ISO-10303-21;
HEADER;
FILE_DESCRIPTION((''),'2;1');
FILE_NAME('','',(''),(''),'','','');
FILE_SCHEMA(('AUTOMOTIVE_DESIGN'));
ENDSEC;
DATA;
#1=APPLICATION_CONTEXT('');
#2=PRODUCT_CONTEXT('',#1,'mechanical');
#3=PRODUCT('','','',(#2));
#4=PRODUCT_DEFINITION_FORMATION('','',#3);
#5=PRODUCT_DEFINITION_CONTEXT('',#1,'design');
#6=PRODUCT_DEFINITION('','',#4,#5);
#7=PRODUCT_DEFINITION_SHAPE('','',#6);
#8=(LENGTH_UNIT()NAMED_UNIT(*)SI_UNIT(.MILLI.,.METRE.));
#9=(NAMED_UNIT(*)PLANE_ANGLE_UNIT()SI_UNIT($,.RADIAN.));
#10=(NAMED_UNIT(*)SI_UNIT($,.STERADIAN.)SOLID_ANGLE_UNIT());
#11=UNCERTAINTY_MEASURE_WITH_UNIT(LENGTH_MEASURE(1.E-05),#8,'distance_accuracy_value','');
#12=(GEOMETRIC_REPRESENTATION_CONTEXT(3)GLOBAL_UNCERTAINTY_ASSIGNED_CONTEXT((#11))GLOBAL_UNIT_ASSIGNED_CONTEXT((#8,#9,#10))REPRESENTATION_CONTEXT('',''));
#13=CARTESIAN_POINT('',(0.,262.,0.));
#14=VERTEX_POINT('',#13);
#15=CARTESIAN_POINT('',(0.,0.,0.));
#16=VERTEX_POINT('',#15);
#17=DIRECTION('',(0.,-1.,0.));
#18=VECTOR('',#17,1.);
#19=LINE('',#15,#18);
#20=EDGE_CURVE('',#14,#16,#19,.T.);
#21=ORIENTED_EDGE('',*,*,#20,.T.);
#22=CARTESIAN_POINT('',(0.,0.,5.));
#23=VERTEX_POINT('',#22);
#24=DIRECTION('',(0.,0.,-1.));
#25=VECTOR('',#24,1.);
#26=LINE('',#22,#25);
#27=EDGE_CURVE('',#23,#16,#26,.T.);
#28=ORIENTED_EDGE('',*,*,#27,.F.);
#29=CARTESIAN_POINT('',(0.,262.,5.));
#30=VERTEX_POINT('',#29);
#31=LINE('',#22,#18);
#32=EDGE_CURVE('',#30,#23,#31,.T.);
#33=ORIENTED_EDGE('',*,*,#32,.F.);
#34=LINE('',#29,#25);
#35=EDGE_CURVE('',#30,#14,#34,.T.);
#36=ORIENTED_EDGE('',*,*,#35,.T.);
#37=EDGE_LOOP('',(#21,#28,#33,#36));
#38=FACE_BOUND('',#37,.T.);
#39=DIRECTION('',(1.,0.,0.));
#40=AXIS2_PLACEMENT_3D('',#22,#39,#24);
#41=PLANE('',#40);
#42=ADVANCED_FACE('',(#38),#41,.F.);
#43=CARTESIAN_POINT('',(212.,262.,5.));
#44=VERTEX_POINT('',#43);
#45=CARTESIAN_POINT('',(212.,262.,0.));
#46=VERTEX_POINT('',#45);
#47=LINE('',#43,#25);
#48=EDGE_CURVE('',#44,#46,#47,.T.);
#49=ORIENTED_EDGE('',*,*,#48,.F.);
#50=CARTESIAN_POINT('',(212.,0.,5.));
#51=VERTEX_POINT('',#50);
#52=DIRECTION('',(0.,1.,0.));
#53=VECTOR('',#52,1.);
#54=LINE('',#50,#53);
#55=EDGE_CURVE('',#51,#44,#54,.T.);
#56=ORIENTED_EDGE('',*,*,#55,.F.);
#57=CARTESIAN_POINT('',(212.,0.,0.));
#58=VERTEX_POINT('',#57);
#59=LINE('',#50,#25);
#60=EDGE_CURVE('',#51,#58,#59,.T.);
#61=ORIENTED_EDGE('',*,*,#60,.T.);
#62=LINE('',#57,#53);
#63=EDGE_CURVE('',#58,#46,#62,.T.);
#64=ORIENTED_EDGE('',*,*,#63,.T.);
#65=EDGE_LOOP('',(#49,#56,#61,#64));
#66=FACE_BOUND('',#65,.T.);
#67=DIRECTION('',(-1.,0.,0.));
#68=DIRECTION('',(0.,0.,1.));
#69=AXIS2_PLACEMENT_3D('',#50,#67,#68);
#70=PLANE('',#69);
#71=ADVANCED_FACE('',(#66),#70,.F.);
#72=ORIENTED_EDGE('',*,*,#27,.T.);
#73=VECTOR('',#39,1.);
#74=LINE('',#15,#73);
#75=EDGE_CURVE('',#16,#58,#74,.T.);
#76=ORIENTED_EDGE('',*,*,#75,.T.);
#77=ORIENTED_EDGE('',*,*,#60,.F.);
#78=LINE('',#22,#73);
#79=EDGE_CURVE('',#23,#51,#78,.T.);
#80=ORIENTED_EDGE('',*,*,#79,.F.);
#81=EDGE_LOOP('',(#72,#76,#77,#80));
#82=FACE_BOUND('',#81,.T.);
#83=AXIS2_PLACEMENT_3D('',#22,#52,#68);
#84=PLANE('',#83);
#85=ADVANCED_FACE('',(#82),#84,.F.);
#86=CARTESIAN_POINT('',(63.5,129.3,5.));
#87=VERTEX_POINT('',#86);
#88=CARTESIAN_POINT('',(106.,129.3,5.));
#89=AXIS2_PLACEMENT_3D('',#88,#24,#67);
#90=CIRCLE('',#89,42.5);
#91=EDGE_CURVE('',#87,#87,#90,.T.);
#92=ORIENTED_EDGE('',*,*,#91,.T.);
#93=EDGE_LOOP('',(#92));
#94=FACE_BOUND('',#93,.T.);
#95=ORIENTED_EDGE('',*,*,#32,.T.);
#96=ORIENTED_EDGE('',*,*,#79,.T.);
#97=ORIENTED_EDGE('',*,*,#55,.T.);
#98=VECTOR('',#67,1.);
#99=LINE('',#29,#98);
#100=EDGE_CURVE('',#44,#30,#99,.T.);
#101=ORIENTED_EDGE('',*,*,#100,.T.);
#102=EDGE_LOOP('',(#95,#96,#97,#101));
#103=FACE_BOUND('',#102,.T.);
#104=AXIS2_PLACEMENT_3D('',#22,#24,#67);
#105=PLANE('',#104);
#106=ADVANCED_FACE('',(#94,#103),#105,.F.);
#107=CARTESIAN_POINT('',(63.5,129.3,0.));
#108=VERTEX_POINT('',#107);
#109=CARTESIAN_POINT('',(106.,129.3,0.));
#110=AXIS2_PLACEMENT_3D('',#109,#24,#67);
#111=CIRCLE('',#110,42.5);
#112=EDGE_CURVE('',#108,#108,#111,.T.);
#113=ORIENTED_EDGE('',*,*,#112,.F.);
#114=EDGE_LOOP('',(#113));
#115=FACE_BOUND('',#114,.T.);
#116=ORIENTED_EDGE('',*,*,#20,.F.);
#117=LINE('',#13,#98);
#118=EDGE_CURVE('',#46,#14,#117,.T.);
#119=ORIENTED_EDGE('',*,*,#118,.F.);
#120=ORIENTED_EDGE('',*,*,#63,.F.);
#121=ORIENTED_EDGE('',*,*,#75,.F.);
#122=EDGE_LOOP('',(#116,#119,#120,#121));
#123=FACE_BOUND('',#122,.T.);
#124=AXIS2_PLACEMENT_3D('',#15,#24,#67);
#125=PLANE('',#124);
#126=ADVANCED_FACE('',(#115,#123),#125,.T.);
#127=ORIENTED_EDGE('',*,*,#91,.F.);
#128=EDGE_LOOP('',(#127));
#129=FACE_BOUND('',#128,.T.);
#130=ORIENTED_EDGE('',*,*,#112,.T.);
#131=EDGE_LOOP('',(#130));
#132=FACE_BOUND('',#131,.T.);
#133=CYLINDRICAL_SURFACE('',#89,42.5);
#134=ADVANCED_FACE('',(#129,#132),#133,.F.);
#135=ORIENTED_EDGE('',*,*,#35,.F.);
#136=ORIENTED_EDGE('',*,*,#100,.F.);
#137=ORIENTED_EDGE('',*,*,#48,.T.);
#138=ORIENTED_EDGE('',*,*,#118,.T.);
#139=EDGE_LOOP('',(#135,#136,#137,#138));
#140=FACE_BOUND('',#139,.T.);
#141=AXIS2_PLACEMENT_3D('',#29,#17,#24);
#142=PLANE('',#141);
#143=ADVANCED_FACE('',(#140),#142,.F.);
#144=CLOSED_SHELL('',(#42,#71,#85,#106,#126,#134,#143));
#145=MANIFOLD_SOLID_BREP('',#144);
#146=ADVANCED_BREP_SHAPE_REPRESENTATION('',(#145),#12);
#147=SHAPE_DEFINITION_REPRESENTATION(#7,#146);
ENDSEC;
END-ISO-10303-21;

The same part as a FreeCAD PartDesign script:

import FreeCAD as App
import Part
import Sketcher

doc = App.newDocument("Part")
body = doc.addObject("PartDesign::Body", "Body")

# Sketch on XY plane
sketch1 = doc.addObject("Sketcher::SketchObject", "Sketch")
body.addObject(sketch1)
sketch1.AttachmentSupport = (doc.XY_Plane, [""])
sketch1.MapMode = "FlatFace"
sketch1.addGeometry([
    Part.LineSegment(App.Vector(0, 262, 0), App.Vector(0, 0, 0)),
    Part.LineSegment(App.Vector(0, 0, 0), App.Vector(212, 0, 0)),
    Part.LineSegment(App.Vector(212, 0, 0), App.Vector(212, 262, 0)),
    Part.LineSegment(App.Vector(212, 262, 0), App.Vector(0, 262, 0)),
], False)
sketch1.addConstraint([
    Sketcher.Constraint("Coincident", 0, 2, 1, 1),
    Sketcher.Constraint("Coincident", 1, 2, 2, 1),
    Sketcher.Constraint("Coincident", 2, 2, 3, 1),
    Sketcher.Constraint("Coincident", 3, 2, 0, 1),
    Sketcher.Constraint("Vertical", 0),
    Sketcher.Constraint("Horizontal", 1),
    Sketcher.Constraint("Vertical", 2),
    Sketcher.Constraint("Horizontal", 3),
    Sketcher.Constraint("Coincident", 0, 2, -1, 1),
    Sketcher.Constraint("DistanceX", 1, 1, 1, 2, 212.0),
    Sketcher.Constraint("DistanceY", 0, 2, 0, 1, 262.0),
])
pad1 = doc.addObject("PartDesign::Pad", "Pad")
body.addObject(pad1)
pad1.Profile = sketch1
pad1.Length = 5

# Sketch on XY plane
sketch2 = doc.addObject("Sketcher::SketchObject", "Sketch001")
body.addObject(sketch2)
sketch2.AttachmentSupport = (doc.XY_Plane, [""])
sketch2.MapMode = "FlatFace"
sketch2.addGeometry(Part.Circle(App.Vector(106, 129, 0), App.Vector(0, 0, 1), 42), False)
sketch2.addConstraint([
    Sketcher.Constraint("Diameter", 0, 85.0),
    Sketcher.Constraint("DistanceX", -1, 1, 0, 3, 106.0),
    Sketcher.Constraint("DistanceY", -1, 1, 0, 3, 129.3),
])
pocket1 = doc.addObject("PartDesign::Pocket", "Pocket")
body.addObject(pocket1)
pocket1.Profile = sketch2
pocket1.Type = "ThroughAll"
pocket1.Reversed = True

doc.recompute()
